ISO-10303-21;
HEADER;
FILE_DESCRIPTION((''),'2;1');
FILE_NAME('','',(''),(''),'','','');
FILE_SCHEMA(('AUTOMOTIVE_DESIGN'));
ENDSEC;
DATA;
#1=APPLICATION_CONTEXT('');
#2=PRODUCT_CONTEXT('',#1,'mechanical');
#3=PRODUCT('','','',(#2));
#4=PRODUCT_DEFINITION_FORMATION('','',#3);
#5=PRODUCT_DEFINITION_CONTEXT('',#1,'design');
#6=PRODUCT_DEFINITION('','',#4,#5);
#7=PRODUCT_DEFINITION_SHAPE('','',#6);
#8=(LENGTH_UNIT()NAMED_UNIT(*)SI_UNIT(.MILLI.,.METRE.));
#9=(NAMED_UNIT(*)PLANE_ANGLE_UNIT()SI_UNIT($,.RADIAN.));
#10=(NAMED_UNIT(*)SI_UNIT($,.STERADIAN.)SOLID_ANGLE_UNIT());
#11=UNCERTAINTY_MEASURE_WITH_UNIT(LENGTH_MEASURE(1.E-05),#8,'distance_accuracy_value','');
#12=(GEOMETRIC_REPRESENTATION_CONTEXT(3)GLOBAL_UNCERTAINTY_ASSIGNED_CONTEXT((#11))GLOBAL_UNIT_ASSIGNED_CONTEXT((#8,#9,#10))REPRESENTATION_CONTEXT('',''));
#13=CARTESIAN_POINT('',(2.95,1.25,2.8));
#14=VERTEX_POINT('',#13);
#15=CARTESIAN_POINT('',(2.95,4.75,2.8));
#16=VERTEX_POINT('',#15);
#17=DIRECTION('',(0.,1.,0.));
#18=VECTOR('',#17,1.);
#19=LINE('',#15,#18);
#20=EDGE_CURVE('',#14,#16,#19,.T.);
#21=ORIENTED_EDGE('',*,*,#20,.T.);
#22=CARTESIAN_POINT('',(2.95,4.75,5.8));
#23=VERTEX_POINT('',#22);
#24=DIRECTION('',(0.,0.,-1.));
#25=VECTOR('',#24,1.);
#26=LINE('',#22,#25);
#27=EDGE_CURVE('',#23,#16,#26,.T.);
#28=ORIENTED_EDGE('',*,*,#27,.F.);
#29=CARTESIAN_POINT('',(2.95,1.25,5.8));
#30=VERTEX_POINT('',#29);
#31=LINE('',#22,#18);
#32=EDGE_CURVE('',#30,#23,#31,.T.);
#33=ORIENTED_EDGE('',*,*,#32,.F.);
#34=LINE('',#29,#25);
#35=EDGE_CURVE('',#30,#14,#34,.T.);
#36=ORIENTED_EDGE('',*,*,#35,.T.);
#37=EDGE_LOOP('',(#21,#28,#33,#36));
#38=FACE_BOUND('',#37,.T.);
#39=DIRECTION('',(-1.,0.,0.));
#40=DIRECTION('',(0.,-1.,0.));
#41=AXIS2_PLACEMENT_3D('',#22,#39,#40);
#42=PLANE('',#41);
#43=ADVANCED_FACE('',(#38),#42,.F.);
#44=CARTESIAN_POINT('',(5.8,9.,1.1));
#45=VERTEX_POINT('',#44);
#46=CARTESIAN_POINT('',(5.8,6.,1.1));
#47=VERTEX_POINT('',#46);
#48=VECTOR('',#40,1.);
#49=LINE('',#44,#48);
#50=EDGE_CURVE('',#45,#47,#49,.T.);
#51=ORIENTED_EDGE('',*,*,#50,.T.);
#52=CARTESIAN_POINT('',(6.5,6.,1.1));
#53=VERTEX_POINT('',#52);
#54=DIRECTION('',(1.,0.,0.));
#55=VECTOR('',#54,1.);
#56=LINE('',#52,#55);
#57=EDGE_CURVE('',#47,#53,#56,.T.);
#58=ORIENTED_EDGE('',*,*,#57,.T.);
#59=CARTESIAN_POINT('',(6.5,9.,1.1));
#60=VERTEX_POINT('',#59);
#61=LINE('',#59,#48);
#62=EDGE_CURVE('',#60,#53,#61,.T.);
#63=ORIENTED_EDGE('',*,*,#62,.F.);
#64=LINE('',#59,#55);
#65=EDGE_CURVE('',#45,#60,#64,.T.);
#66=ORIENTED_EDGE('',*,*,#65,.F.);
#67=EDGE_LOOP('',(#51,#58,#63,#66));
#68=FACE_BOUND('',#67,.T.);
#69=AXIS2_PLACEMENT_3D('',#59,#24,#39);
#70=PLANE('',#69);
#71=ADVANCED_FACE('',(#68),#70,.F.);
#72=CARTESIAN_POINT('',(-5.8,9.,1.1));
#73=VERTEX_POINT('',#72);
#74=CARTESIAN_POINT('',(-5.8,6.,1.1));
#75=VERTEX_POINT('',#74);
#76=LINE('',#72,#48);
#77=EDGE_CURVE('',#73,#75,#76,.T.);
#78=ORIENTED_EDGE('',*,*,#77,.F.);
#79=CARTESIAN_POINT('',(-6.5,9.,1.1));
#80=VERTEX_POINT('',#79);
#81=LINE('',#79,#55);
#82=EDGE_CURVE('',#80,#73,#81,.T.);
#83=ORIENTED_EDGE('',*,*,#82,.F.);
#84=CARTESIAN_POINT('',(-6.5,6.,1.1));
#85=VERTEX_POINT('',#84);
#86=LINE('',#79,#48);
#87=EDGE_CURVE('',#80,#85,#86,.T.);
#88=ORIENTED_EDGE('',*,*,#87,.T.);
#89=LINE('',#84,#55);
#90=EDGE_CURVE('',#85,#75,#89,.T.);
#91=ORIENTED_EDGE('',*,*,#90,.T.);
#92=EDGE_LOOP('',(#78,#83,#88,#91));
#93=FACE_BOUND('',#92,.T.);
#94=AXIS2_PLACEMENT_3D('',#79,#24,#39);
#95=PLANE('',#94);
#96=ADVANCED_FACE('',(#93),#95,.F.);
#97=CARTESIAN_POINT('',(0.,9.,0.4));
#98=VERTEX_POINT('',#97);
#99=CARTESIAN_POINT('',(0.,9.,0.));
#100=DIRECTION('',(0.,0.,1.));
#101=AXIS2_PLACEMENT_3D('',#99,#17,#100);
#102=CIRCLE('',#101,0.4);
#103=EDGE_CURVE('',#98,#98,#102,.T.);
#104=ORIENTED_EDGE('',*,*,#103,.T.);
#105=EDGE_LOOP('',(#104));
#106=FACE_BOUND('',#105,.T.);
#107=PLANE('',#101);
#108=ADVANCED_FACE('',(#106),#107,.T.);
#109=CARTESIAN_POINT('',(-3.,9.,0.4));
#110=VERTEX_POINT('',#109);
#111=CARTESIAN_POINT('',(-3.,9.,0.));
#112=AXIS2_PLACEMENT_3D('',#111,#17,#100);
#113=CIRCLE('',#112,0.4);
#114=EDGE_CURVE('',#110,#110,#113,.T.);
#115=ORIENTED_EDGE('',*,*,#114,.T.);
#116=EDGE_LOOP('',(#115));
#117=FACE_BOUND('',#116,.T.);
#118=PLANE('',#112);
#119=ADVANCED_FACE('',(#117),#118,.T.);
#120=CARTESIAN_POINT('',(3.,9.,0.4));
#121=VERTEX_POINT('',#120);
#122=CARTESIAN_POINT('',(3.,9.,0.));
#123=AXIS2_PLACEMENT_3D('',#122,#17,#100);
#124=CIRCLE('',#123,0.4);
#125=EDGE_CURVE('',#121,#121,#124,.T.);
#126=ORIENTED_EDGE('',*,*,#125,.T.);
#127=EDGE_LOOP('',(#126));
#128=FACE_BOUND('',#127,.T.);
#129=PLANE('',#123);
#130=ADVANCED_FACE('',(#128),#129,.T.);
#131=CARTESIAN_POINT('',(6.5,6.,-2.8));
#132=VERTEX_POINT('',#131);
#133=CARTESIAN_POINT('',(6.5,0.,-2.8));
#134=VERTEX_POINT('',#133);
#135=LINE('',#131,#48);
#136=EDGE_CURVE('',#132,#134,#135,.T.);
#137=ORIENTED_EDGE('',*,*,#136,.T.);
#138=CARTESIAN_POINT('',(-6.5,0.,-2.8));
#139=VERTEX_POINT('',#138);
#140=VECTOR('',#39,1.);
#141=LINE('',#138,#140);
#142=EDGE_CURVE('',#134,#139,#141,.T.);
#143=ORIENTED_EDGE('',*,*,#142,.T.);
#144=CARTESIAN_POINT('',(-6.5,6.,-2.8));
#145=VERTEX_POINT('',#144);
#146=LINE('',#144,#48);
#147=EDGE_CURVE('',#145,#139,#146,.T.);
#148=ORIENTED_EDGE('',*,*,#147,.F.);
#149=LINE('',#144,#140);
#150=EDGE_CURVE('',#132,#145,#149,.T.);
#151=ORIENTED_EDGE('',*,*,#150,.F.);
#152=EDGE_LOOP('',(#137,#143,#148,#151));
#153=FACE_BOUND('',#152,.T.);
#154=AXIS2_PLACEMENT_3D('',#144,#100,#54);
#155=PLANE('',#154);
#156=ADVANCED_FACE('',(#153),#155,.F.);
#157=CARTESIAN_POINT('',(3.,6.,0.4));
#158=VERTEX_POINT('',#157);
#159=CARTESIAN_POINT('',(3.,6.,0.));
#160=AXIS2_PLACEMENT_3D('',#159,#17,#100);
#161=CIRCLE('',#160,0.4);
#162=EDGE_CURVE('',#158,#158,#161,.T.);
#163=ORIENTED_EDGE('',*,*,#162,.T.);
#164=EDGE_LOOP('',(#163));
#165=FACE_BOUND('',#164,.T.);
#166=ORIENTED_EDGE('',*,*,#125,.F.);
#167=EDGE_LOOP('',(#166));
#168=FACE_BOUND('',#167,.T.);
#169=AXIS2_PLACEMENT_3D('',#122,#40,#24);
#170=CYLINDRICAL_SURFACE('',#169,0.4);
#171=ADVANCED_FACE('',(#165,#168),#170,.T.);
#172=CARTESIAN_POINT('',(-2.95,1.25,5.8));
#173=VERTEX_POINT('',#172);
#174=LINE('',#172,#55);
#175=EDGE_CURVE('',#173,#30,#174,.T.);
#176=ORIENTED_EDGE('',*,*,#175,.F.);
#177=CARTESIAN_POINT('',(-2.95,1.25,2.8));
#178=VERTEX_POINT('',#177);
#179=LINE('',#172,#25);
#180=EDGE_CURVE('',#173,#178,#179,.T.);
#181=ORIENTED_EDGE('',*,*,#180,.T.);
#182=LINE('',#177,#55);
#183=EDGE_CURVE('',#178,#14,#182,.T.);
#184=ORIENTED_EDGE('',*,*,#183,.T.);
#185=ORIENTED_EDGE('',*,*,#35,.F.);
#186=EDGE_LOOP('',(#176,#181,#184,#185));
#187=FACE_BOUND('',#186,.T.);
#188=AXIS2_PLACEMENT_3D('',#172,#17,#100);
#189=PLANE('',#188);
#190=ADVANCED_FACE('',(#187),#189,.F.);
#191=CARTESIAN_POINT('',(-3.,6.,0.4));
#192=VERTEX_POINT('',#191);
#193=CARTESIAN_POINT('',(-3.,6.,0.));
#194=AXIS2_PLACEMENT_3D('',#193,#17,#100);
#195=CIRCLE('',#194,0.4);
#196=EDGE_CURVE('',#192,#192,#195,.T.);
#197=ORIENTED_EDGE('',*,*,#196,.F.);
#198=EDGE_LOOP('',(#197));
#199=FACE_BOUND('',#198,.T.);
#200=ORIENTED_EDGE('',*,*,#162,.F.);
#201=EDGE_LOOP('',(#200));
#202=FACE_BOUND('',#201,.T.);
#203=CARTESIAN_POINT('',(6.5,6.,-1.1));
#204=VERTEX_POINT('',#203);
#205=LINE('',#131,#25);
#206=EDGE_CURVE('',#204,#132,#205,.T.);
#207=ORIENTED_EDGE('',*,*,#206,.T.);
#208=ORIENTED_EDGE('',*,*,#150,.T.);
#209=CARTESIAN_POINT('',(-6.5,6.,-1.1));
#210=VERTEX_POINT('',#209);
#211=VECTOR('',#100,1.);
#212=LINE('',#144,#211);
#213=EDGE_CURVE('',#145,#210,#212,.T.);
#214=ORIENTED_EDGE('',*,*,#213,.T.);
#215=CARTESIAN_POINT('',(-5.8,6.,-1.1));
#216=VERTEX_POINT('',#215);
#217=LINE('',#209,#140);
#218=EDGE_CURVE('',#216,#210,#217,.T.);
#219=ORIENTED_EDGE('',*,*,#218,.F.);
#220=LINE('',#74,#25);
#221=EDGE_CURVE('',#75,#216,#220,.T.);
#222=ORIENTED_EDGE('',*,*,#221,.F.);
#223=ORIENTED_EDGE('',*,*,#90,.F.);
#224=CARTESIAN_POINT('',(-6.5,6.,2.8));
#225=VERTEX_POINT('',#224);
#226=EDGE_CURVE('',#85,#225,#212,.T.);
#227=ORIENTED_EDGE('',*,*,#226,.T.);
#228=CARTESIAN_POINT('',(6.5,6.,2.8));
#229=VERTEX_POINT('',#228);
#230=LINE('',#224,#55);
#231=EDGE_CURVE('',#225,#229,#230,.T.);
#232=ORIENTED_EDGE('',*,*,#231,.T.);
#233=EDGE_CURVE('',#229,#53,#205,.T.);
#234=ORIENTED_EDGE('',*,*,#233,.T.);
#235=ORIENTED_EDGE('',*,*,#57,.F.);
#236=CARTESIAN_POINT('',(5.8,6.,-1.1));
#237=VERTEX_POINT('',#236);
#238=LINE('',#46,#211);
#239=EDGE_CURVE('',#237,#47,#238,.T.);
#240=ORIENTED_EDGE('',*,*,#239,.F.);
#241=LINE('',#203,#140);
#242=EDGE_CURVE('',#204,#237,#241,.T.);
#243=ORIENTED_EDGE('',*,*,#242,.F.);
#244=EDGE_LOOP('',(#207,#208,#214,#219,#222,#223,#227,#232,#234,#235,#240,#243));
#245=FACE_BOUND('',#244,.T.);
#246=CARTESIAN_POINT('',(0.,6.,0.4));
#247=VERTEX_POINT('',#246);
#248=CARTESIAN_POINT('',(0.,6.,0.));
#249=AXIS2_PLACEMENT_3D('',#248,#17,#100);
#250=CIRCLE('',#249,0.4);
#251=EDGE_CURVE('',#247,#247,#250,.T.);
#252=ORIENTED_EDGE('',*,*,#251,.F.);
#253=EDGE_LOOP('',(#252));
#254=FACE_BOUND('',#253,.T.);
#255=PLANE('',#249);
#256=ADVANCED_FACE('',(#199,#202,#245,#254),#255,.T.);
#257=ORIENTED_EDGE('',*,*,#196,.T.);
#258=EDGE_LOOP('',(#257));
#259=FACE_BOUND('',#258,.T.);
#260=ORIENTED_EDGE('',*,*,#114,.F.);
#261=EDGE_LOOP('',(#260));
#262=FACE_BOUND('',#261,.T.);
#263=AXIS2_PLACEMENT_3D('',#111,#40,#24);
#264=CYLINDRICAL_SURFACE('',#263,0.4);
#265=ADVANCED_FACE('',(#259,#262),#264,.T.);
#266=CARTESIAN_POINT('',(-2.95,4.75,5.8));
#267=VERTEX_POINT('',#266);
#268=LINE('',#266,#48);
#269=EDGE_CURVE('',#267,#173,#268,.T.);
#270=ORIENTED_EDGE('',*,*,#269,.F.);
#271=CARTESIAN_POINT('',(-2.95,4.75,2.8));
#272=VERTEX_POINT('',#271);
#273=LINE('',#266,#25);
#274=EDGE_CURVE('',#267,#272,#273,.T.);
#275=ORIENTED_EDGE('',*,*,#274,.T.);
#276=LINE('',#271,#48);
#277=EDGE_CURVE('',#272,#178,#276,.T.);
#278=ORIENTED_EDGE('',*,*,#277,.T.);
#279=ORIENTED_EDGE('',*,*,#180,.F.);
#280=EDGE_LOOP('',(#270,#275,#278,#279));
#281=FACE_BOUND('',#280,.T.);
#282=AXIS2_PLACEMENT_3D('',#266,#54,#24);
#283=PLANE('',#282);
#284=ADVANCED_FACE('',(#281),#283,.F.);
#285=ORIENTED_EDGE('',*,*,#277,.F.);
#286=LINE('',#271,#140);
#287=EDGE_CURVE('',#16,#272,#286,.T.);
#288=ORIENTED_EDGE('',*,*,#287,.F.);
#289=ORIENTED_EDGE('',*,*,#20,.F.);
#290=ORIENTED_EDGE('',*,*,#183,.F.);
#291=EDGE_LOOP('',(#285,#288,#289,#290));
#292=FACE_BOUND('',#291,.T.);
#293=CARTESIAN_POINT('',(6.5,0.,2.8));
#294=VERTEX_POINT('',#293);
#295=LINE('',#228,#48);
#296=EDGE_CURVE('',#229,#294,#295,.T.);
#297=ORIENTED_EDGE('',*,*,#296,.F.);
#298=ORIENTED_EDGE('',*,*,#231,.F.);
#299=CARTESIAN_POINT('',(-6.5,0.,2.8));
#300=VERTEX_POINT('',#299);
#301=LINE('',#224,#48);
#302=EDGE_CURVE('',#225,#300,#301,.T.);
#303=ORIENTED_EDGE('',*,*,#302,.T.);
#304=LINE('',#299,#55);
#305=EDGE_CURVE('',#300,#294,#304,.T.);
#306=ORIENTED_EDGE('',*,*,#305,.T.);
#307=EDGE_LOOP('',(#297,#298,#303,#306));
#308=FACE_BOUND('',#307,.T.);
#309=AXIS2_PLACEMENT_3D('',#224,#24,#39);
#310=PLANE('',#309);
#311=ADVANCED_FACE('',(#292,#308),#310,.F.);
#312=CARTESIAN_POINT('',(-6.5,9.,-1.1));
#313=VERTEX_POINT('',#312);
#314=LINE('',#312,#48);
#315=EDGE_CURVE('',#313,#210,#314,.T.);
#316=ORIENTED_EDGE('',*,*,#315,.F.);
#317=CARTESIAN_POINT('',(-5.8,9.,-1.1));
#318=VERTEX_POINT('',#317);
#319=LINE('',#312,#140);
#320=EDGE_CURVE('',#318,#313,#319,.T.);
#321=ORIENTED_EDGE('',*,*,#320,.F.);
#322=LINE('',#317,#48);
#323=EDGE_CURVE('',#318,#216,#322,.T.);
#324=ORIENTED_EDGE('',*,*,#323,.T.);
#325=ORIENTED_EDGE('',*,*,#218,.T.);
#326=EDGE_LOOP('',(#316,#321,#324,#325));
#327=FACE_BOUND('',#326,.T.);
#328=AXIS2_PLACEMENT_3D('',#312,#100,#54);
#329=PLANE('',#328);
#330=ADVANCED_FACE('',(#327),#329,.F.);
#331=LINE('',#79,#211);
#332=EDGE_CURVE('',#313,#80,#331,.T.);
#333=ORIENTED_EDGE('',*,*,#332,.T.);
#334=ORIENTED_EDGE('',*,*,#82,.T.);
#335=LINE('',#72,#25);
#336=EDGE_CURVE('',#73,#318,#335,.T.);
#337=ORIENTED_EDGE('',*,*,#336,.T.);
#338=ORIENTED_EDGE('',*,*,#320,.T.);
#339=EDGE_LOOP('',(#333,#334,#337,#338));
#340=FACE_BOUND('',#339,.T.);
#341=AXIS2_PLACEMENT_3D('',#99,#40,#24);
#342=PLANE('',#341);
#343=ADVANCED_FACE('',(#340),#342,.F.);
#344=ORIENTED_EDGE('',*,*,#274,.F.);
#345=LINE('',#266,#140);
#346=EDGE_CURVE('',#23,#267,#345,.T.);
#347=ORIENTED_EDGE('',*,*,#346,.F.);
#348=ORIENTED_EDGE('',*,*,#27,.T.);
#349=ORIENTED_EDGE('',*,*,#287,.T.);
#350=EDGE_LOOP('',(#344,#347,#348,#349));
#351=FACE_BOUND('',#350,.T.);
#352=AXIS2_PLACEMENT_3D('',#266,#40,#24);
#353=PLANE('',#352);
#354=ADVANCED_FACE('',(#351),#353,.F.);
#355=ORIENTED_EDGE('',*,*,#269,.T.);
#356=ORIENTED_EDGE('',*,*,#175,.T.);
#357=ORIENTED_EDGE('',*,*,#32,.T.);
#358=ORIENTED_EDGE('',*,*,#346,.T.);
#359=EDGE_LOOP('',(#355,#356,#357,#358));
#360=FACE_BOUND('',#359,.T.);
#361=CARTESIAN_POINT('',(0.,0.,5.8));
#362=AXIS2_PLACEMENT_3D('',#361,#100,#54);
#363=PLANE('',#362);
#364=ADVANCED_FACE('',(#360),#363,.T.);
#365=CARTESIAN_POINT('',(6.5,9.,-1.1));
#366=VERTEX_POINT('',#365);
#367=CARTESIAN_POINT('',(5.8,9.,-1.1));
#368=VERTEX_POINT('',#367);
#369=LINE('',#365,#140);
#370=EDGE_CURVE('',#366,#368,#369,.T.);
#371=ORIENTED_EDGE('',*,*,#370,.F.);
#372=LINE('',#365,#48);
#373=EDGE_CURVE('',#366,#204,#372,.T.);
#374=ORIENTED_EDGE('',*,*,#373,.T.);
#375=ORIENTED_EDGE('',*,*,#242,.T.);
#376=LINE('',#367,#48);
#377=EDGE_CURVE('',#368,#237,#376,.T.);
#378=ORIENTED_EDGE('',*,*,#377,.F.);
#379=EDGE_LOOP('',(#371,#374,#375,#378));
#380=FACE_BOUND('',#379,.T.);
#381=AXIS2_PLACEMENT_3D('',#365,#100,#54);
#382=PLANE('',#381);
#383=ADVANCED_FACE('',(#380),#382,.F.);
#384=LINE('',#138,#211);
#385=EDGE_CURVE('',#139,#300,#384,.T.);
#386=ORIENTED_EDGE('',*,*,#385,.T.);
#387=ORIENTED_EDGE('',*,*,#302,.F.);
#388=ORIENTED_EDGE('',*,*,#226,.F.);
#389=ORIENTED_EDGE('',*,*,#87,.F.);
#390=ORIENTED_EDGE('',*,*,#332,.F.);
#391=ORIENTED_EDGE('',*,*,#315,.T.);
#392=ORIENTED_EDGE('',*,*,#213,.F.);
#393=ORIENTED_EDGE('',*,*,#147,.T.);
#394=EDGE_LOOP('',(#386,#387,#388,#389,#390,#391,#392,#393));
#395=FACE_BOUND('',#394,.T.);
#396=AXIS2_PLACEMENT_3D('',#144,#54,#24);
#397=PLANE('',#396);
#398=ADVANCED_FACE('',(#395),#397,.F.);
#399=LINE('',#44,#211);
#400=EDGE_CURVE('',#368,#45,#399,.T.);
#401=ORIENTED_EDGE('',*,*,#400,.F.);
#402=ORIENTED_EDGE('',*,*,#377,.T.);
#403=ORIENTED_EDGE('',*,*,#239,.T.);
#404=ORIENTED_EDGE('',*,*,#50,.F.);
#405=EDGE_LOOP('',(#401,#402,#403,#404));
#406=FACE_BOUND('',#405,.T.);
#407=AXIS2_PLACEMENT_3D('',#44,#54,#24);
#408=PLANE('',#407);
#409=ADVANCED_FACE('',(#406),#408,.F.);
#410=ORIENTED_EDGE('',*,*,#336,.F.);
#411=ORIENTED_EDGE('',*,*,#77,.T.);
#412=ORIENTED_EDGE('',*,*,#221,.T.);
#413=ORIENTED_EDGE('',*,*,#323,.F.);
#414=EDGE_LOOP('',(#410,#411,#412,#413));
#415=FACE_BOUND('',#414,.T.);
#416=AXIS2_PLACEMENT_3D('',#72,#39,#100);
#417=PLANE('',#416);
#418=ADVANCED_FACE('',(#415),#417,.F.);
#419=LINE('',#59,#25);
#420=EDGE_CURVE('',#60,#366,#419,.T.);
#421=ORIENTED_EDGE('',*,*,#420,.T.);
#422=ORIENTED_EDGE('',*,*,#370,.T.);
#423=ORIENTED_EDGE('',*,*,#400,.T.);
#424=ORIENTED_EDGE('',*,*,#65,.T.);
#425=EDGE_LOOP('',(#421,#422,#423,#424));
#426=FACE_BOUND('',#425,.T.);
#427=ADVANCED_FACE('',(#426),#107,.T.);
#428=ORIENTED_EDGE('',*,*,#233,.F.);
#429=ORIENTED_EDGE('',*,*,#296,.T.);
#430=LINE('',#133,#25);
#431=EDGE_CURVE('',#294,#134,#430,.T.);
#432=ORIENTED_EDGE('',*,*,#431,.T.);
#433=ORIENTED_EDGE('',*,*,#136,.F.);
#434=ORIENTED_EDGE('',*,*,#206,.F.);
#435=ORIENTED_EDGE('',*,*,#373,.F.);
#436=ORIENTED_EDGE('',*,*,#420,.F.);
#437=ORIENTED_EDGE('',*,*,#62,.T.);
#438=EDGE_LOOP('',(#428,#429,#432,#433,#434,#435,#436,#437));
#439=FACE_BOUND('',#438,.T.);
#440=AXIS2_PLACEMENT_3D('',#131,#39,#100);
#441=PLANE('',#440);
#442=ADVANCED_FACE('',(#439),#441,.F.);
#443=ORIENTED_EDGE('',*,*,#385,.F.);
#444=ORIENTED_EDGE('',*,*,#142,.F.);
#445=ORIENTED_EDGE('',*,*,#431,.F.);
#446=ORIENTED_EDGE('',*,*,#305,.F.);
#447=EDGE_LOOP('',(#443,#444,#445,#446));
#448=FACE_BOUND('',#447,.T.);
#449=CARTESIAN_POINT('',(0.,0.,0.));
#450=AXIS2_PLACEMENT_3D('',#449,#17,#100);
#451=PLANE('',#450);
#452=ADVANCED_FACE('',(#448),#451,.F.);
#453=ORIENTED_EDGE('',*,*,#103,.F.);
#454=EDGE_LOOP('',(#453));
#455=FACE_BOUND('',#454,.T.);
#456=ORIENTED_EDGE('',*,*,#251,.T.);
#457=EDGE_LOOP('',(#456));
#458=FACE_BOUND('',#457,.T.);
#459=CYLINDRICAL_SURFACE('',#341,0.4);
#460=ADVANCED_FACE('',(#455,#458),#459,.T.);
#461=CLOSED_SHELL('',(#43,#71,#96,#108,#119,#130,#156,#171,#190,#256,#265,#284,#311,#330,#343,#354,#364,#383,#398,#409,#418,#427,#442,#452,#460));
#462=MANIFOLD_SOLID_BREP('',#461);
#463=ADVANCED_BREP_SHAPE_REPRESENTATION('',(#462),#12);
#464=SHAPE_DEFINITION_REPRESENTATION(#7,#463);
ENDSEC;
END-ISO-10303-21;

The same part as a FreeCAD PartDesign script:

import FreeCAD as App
import Part
import Sketcher

V = App.Vector
Q = App.Units.Quantity

doc = App.newDocument("Part")
body = doc.addObject("PartDesign::Body", "Body")

sketch1 = body.newObject("Sketcher::SketchObject", "Sketch")
sketch1.AttachmentSupport = (doc.getObject("XZ_Plane"), [""])
sketch1.MapMode = "FlatFace"
sketch1.addGeometry([
    Part.LineSegment(V(-6, -3, 0), V(-6, 3, 0)),
    Part.LineSegment(V(-6, 3, 0), V(6, 3, 0)),
    Part.LineSegment(V(6, 3, 0), V(6, -3, 0)),
    Part.LineSegment(V(6, -3, 0), V(-6, -3, 0)),
], False)
sketch1.addConstraint([
    Sketcher.Constraint("Coincident", 0, 2, 1, 1),
    Sketcher.Constraint("Coincident", 1, 2, 2, 1),
    Sketcher.Constraint("Coincident", 2, 2, 3, 1),
    Sketcher.Constraint("Coincident", 3, 2, 0, 1),
    Sketcher.Constraint("Vertical", 0),
    Sketcher.Constraint("Horizontal", 1),
    Sketcher.Constraint("Vertical", 2),
    Sketcher.Constraint("Horizontal", 3),
    Sketcher.Constraint("Symmetric", 0, 2, 2, 2, -1, 1),
    Sketcher.Constraint("DistanceX", 1, 1, 1, 2, Q("13 mm")),
    Sketcher.Constraint("DistanceY", 0, 1, 0, 2, Q("5.6 mm")),
])
pad1 = body.newObject("PartDesign::Pad", "Pad")
pad1.Profile = sketch1
pad1.Length = 6
pad1.Reversed = True

sketch2 = body.newObject("Sketcher::SketchObject", "Sketch001")
sketch2.AttachmentSupport = (doc.getObject("XZ_Plane"), [""])
sketch2.MapMode = "FlatFace"
sketch2.AttachmentOffset = App.Placement(V(0, 0, -6), App.Rotation())
sketch2.addGeometry([
    Part.Circle(V(-3, 0, 0), V(0, 0, 1), 0.4),
    Part.Circle(V(0, 0, 0), V(0, 0, 1), 0.4),
    Part.Circle(V(3, 0, 0), V(0, 0, 1), 0.4),
    Part.LineSegment(V(-6.5, -1.1, 0), V(-6.5, 1.1, 0)),
    Part.LineSegment(V(-6.5, 1.1, 0), V(-5.8, 1.1, 0)),
    Part.LineSegment(V(-5.8, 1.1, 0), V(-5.8, -1.1, 0)),
    Part.LineSegment(V(-5.8, -1.1, 0), V(-6.5, -1.1, 0)),
    Part.LineSegment(V(5.8, -1.1, 0), V(5.8, 1.1, 0)),
    Part.LineSegment(V(5.8, 1.1, 0), V(6.5, 1.1, 0)),
    Part.LineSegment(V(6.5, 1.1, 0), V(6.5, -1.1, 0)),
    Part.LineSegment(V(6.5, -1.1, 0), V(5.8, -1.1, 0)),
], False)
sketch2.addConstraint([
    Sketcher.Constraint("Coincident", 3, 2, 4, 1),
    Sketcher.Constraint("Coincident", 4, 2, 5, 1),
    Sketcher.Constraint("Coincident", 5, 2, 6, 1),
    Sketcher.Constraint("Coincident", 6, 2, 3, 1),
    Sketcher.Constraint("Coincident", 7, 2, 8, 1),
    Sketcher.Constraint("Coincident", 8, 2, 9, 1),
    Sketcher.Constraint("Coincident", 9, 2, 10, 1),
    Sketcher.Constraint("Coincident", 10, 2, 7, 1),
    Sketcher.Constraint("Vertical", 3),
    Sketcher.Constraint("Horizontal", 4),
    Sketcher.Constraint("Vertical", 5),
    Sketcher.Constraint("Horizontal", 6),
    Sketcher.Constraint("Vertical", 7),
    Sketcher.Constraint("Horizontal", 8),
    Sketcher.Constraint("Vertical", 9),
    Sketcher.Constraint("Horizontal", 10),
    Sketcher.Constraint("Coincident", 1, 3, -1, 1),
    Sketcher.Constraint("Equal", 0, 1),
    Sketcher.Constraint("Equal", 1, 2),
    Sketcher.Constraint("Symmetric", 0, 3, 2, 3, -1, 1),
    Sketcher.Constraint("Symmetric", 5, 2, 7, 2, -1, 1),
    Sketcher.Constraint("Symmetric", 3, 2, 9, 2, -1, 1),
    Sketcher.Constraint("PointOnObject", 0, 3, -1),
    Sketcher.Constraint("Horizontal", 4, 2, 7, 2),
    Sketcher.Constraint("Diameter", 0, Q("0.8 mm")),
    Sketcher.Constraint("DistanceX", 4, 1, 4, 2, Q("0.7 mm")),
    Sketcher.Constraint("DistanceY", 3, 1, 3, 2, Q("2.2 mm")),
    Sketcher.Constraint("DistanceX", 0, 3, -1, 1, Q("3 mm")),
    Sketcher.Constraint("DistanceX", 3, 2, -1, 1, Q("6.5 mm")),
])
pad2 = body.newObject("PartDesign::Pad", "Pad001")
pad2.Profile = sketch2
pad2.Length = 3
pad2.Reversed = True

sketch3 = body.newObject("Sketcher::SketchObject", "Sketch002")
sketch3.AttachmentSupport = (doc.getObject("XY_Plane"), [""])
sketch3.MapMode = "FlatFace"
sketch3.AttachmentOffset = App.Placement(V(0, 0, 2.8), App.Rotation())
sketch3.addGeometry([
    Part.LineSegment(V(-3, 4.8, 0), V(-3, 1.2, 0)),
    Part.LineSegment(V(-3, 1.2, 0), V(3, 1.2, 0)),
    Part.LineSegment(V(3, 1.2, 0), V(3, 4.8, 0)),
    Part.LineSegment(V(3, 4.8, 0), V(-3, 4.8, 0)),
], False)
sketch3.addConstraint([
    Sketcher.Constraint("Coincident", 0, 2, 1, 1),
    Sketcher.Constraint("Coincident", 1, 2, 2, 1),
    Sketcher.Constraint("Coincident", 2, 2, 3, 1),
    Sketcher.Constraint("Coincident", 3, 2, 0, 1),
    Sketcher.Constraint("Vertical", 0),
    Sketcher.Constraint("Horizontal", 1),
    Sketcher.Constraint("Vertical", 2),
    Sketcher.Constraint("Horizontal", 3),
    Sketcher.Constraint("DistanceX", 1, 1, 1, 2, Q("5.9 mm")),
    Sketcher.Constraint("DistanceY", 0, 2, 0, 1, Q("3.5 mm")),
    Sketcher.Constraint("DistanceX", 0, 2, -1, 1, Q("2.95 mm")),
    Sketcher.Constraint("DistanceY", -1, 1, 0, 2, Q("1.25 mm")),
])
pad3 = body.newObject("PartDesign::Pad", "Pad002")
pad3.Profile = sketch3
pad3.Length = 3

doc.recompute()
